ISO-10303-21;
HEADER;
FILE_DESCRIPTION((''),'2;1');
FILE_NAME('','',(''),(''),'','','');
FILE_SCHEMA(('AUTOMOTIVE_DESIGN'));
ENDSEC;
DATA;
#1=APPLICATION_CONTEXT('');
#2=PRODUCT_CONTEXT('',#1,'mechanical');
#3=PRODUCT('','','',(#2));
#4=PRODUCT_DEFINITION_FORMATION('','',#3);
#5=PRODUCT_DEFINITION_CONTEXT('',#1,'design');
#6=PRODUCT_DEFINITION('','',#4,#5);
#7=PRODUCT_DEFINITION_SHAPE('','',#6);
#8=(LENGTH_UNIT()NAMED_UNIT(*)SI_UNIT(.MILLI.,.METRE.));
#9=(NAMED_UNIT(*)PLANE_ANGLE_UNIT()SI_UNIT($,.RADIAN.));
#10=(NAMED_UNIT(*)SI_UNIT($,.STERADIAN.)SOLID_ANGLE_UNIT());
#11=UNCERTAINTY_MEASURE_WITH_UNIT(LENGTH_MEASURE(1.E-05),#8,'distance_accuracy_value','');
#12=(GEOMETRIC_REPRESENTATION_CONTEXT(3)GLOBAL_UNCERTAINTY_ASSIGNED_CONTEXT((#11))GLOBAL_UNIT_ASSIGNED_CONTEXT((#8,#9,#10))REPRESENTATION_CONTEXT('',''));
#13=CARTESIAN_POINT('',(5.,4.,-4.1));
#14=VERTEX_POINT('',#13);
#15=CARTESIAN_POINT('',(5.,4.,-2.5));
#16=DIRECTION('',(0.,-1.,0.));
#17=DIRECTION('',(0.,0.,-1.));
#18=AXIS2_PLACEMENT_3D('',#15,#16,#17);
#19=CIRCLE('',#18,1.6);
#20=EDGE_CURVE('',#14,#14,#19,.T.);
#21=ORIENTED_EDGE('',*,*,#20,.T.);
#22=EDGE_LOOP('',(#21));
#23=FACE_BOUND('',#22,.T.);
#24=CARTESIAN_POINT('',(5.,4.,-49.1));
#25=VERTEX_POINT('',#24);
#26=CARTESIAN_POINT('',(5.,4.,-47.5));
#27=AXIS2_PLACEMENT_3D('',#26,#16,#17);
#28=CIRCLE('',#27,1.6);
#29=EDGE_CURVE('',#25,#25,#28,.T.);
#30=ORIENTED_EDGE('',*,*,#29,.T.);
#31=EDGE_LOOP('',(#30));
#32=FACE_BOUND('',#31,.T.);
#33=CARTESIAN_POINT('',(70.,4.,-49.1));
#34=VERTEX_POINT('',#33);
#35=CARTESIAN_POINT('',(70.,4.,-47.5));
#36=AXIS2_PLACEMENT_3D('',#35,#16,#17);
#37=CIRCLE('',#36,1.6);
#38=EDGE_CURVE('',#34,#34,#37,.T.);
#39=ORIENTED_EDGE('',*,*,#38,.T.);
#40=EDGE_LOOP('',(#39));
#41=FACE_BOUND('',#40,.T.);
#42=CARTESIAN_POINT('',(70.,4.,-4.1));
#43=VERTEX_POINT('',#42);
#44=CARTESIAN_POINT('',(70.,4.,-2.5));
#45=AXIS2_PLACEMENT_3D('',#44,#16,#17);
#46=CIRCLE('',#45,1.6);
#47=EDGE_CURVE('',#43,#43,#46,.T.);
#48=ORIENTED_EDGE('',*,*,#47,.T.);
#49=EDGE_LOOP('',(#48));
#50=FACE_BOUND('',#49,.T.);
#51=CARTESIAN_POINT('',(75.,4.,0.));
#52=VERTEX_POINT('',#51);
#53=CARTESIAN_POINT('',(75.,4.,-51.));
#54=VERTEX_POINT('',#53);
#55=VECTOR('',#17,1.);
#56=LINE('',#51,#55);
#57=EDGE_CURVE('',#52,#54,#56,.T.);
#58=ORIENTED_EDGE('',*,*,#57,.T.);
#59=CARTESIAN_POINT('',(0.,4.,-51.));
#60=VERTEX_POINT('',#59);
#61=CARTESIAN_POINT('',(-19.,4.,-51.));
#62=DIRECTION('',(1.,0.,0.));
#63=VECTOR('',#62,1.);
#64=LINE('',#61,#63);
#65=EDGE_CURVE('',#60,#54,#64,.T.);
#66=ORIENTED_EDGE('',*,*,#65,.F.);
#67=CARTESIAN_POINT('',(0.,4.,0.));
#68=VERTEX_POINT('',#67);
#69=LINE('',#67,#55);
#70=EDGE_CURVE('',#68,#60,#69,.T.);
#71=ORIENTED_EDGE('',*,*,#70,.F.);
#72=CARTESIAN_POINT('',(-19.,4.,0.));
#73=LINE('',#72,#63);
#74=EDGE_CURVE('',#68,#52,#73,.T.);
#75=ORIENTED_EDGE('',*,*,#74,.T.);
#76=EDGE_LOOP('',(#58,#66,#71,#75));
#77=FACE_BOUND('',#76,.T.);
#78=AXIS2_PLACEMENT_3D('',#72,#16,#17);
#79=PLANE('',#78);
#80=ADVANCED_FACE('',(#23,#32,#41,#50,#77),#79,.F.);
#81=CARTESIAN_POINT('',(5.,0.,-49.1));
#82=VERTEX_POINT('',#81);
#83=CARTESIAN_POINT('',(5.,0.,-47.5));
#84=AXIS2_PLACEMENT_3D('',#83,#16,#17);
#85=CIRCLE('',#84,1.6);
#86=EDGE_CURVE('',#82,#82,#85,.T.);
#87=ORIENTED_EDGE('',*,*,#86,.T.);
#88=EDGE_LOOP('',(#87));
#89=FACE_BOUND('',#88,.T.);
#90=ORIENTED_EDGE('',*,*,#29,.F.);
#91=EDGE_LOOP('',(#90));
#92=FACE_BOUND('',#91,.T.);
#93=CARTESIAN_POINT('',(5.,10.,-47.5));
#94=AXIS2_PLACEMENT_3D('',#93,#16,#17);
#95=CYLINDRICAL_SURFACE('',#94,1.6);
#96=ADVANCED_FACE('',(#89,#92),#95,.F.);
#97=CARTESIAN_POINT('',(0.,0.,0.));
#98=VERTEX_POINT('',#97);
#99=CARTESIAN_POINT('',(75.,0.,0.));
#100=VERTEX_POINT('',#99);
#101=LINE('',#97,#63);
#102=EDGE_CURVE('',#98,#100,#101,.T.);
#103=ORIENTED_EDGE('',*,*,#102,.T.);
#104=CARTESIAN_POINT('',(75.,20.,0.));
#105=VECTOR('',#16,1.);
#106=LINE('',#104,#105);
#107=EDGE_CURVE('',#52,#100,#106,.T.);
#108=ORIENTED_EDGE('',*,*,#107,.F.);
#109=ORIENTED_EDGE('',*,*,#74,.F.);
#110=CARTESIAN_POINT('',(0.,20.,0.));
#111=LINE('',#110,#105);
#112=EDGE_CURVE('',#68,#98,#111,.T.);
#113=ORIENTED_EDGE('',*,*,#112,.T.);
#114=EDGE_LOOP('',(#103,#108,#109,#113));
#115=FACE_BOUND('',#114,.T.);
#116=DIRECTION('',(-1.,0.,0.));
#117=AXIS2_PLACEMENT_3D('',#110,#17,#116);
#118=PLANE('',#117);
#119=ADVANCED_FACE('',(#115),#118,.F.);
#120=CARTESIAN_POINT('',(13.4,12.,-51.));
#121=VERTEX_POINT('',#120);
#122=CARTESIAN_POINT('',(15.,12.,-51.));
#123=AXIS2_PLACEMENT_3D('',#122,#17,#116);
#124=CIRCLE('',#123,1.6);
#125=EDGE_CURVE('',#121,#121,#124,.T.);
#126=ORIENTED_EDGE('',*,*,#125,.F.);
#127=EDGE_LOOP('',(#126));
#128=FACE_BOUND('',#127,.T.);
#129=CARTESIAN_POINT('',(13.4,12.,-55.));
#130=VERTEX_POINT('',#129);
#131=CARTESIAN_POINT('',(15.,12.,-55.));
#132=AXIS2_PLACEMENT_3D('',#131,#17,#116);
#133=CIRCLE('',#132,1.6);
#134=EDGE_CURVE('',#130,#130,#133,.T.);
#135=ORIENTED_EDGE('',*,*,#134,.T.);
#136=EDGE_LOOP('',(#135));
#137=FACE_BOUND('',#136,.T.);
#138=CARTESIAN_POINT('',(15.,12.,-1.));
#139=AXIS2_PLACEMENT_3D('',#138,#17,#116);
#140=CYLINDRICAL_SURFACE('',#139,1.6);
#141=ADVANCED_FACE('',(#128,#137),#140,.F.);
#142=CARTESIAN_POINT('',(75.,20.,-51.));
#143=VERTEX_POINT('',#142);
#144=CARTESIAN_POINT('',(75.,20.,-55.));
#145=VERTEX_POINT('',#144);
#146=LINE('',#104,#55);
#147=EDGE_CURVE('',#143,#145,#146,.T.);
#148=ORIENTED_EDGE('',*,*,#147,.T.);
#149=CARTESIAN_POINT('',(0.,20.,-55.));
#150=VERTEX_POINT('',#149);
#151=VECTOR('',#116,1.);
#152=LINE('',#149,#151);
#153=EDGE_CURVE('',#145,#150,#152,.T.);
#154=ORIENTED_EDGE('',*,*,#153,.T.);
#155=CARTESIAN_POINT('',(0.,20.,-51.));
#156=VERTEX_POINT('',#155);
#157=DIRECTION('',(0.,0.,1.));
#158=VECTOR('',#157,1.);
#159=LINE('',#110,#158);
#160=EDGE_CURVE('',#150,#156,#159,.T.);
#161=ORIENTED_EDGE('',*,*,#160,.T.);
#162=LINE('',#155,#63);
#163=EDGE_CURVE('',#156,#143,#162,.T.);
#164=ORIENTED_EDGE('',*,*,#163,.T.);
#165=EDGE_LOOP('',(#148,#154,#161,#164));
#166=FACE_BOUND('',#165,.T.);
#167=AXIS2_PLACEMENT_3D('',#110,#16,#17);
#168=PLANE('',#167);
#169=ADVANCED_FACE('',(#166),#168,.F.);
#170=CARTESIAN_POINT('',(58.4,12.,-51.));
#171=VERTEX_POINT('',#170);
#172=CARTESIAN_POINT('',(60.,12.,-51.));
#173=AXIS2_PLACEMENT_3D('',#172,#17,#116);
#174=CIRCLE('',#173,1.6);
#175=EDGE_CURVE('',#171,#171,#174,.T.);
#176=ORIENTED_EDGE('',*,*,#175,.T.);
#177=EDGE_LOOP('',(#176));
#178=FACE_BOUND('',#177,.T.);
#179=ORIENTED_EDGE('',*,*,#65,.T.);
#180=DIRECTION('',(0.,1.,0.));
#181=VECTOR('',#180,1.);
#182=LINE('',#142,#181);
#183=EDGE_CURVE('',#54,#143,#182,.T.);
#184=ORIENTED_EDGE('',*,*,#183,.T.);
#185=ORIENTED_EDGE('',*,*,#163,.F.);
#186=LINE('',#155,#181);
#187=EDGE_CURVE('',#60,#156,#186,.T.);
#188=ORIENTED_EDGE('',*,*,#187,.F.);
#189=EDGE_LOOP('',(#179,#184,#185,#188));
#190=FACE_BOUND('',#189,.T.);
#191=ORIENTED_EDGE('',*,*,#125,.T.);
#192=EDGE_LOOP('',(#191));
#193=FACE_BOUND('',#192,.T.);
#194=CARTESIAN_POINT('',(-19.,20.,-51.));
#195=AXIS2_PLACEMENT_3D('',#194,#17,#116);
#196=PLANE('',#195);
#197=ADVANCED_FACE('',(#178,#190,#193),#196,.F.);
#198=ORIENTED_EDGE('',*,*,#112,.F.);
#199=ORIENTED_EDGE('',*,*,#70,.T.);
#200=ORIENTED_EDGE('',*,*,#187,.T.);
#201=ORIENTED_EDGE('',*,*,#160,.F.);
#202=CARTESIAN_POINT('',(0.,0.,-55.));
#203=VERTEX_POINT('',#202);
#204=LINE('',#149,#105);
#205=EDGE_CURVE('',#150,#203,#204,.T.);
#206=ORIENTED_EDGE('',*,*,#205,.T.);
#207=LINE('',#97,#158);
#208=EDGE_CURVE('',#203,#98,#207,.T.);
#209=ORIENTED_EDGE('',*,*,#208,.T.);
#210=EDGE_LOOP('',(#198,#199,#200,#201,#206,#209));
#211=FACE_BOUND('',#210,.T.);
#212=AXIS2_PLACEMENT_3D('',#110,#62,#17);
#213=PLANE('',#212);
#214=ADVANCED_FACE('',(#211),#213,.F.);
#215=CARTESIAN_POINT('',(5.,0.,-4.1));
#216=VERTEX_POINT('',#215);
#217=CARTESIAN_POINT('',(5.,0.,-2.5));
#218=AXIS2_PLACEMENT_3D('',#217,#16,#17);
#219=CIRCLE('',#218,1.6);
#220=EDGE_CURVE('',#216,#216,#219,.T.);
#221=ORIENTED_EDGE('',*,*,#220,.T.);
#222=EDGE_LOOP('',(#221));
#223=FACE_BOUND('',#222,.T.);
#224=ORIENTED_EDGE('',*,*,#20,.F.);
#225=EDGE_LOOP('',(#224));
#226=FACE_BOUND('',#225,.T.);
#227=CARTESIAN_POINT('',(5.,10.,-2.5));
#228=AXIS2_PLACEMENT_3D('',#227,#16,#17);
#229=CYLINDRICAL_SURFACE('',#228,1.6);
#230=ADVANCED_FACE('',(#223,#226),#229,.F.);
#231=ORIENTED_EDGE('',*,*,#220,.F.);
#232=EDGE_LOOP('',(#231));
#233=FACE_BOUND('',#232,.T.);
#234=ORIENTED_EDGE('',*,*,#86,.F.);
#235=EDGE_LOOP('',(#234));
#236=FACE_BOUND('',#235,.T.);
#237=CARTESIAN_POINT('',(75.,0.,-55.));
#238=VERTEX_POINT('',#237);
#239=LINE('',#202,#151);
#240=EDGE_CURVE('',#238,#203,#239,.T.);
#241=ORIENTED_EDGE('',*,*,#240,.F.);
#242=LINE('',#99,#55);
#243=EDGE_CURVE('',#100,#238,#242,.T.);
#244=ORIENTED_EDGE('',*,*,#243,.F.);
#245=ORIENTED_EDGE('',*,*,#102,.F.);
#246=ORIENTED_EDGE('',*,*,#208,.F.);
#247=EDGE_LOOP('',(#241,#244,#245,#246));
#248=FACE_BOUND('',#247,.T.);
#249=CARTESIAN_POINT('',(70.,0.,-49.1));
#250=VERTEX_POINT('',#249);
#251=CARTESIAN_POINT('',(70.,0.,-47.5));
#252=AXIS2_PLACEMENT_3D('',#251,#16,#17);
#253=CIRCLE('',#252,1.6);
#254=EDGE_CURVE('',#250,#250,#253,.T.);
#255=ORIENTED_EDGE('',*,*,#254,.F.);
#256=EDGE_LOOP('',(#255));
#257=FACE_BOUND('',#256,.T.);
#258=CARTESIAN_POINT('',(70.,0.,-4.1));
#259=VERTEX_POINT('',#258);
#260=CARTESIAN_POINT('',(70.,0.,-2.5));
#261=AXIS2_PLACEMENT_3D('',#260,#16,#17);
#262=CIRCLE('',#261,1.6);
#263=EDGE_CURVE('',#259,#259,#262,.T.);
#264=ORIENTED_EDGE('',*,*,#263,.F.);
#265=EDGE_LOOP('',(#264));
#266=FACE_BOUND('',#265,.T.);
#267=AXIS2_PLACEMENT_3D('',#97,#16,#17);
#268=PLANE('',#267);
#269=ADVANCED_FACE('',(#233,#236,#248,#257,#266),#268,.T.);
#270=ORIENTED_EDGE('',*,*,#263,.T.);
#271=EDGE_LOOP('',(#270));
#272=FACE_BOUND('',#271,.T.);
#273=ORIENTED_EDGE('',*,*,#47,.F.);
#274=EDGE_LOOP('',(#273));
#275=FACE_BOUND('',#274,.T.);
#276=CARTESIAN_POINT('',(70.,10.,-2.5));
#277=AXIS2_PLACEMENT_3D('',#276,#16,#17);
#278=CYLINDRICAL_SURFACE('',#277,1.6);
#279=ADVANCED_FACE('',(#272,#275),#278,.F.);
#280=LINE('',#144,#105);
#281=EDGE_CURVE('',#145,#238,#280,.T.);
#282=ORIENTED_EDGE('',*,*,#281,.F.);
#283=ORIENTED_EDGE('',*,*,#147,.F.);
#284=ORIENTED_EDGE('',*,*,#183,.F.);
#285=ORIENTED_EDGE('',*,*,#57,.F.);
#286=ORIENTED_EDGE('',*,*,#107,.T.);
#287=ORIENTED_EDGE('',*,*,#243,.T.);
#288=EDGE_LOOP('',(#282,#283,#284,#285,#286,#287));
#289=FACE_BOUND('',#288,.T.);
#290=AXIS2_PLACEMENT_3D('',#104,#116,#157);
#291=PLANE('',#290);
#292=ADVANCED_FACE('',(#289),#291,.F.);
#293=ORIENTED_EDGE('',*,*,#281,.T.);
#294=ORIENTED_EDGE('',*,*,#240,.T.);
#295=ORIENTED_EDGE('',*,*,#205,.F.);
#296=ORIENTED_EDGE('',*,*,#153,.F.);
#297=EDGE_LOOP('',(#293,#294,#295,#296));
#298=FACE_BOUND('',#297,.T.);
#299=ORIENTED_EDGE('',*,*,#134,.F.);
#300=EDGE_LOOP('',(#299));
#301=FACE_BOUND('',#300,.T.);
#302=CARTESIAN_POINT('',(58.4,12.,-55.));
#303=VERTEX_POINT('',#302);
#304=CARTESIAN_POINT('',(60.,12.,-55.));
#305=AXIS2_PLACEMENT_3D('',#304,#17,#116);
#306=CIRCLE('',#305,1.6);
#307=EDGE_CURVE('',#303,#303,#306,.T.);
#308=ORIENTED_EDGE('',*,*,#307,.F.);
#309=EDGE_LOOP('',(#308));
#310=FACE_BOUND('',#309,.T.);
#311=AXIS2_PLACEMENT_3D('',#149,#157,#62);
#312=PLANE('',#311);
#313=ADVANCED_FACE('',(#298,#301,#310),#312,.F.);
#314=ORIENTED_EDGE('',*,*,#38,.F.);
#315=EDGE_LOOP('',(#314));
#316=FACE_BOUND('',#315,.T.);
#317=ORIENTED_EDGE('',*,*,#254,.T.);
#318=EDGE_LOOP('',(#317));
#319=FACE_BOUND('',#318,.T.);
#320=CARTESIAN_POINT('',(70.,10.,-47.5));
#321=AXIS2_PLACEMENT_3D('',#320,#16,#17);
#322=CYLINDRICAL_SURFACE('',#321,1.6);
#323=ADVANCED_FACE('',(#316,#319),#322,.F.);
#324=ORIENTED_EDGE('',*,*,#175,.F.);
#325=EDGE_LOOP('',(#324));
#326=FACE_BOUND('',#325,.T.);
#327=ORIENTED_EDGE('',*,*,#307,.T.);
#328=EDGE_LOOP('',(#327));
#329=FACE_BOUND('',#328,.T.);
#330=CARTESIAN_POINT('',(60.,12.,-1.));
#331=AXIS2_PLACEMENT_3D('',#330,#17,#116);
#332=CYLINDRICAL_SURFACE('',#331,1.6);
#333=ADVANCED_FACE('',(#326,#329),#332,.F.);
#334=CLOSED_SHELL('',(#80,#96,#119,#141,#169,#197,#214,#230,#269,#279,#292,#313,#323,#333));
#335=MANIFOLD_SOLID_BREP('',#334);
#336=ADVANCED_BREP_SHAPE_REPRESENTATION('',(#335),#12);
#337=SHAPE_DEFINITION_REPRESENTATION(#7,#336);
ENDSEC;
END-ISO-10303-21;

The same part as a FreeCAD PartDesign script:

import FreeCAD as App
import Part
import Sketcher
from FreeCAD import Vector
Q = App.Units.Quantity


def add_polygon(sketch, points):
    """Adds a closed chain of lines whose ends are joined by coincident constraints."""
    first, n = sketch.GeometryCount, len(points)
    for a, b in zip(points, points[1:] + points[:1]):
        sketch.addGeometry(Part.LineSegment(App.Vector(*a, 0), App.Vector(*b, 0)), False)
    for i in range(n):
        sketch.addConstraint(Sketcher.Constraint("Coincident", first + i, 2, first + (i + 1) % n, 1))

doc = App.newDocument("Part")
params = doc.addObject("Spreadsheet::Sheet", "Params")
for row, (alias, value) in enumerate([
    ("sketch1_width", "75 mm"),
    ("sketch1_height", "55 mm"),
    ("pad1_length", "20 mm"),
    ("sketch2_width", "16 mm"),
    ("sketch2_height", "51 mm"),
    ("pocket1_length", "94 mm"),
    ("sketch3_diameter", "3.2 mm"),
    ("pocket2_length", "54 mm"),
    ("sketch4_diameter", "3.2 mm"),
    ("pocket3_length", "10 mm"),
], start=1):
    params.set(f"A{row}", alias)
    params.set(f"B{row}", "=" + value)
    params.setAlias(f"B{row}", alias)

body = doc.addObject("PartDesign::Body", "Body")

sketch1 = body.newObject("Sketcher::SketchObject", "Sketch")
sketch1.AttachmentSupport = (doc.getObject("XZ_Plane"), [""])
sketch1.MapMode = "FlatFace"
add_polygon(sketch1, [(0, -55), (0, 0), (75, 0), (75, -55)])
sketch1.addConstraint(Sketcher.Constraint("Vertical", 0))
sketch1.addConstraint(Sketcher.Constraint("Horizontal", 1))
sketch1.addConstraint(Sketcher.Constraint("Vertical", 2))
sketch1.addConstraint(Sketcher.Constraint("Horizontal", 3))
sketch1.addConstraint(Sketcher.Constraint("Coincident", 0, 2, -1, 1))
sketch1.addConstraint(Sketcher.Constraint("DistanceX", 1, 1, 1, 2, Q("75 mm")))
sketch1.addConstraint(Sketcher.Constraint("DistanceY", 0, 1, 0, 2, Q("55 mm")))
sketch1.setExpression("Constraints[9]", "Params.sketch1_width")
sketch1.setExpression("Constraints[10]", "Params.sketch1_height")
pad1 = body.newObject("PartDesign::Pad", "Pad")
pad1.Profile = sketch1
pad1.setExpression("Length", "Params.pad1_length")
pad1.Reversed = True

sketch2 = body.newObject("Sketcher::SketchObject", "Sketch001")
sketch2.AttachmentSupport = (doc.getObject("YZ_Plane"), [""])
sketch2.MapMode = "FlatFace"
sketch2.AttachmentOffset = App.Placement(Vector(0, 0, 75), App.Rotation())
add_polygon(sketch2, [(20, 0), (4, 0), (4, -51), (20, -51)])
sketch2.addConstraint(Sketcher.Constraint("Horizontal", 0))
sketch2.addConstraint(Sketcher.Constraint("Vertical", 1))
sketch2.addConstraint(Sketcher.Constraint("Horizontal", 2))
sketch2.addConstraint(Sketcher.Constraint("Vertical", 3))
sketch2.addConstraint(Sketcher.Constraint("PointOnObject", 0, 2, -1))
sketch2.addConstraint(Sketcher.Constraint("DistanceX", 0, 2, 0, 1, Q("16 mm")))
sketch2.addConstraint(Sketcher.Constraint("DistanceY", 1, 2, 1, 1, Q("51 mm")))
sketch2.addConstraint(Sketcher.Constraint("DistanceX", -1, 1, 0, 2, Q("4 mm")))
sketch2.setExpression("Constraints[9]", "Params.sketch2_width")
sketch2.setExpression("Constraints[10]", "Params.sketch2_height")
pocket1 = body.newObject("PartDesign::Pocket", "Pocket")
pocket1.Profile = sketch2
pocket1.setExpression("Length", "Params.pocket1_length")

sketch3 = body.newObject("Sketcher::SketchObject", "Sketch002")
sketch3.AttachmentSupport = (doc.getObject("XY_Plane"), [""])
sketch3.MapMode = "FlatFace"
sketch3.AttachmentOffset = App.Placement(Vector(0, 0, -55), App.Rotation())
sketch3.addGeometry(Part.Circle(Vector(60, 12, 0), Vector(0, 0, 1), 1.6), False)
sketch3.addGeometry(Part.Circle(Vector(15, 12, 0), Vector(0, 0, 1), 1.6), False)
sketch3.addConstraint(Sketcher.Constraint("Equal", 0, 1))
sketch3.addConstraint(Sketcher.Constraint("Horizontal", 0, 3, 1, 3))
sketch3.addConstraint(Sketcher.Constraint("Diameter", 0, Q("3.2 mm")))
sketch3.addConstraint(Sketcher.Constraint("DistanceX", -1, 1, 0, 3, Q("60 mm")))
sketch3.addConstraint(Sketcher.Constraint("DistanceY", -1, 1, 0, 3, Q("12 mm")))
sketch3.addConstraint(Sketcher.Constraint("DistanceX", -1, 1, 1, 3, Q("15 mm")))
sketch3.setExpression("Constraints[2]", "Params.sketch3_diameter")
pocket2 = body.newObject("PartDesign::Pocket", "Pocket001")
pocket2.Profile = sketch3
pocket2.setExpression("Length", "Params.pocket2_length")
pocket2.Reversed = True

sketch4 = body.newObject("Sketcher::SketchObject", "Sketch003")
sketch4.AttachmentSupport = (doc.getObject("XZ_Plane"), [""])
sketch4.MapMode = "FlatFace"
sketch4.addGeometry(Part.Circle(Vector(5, -2.5, 0), Vector(0, 0, 1), 1.6), False)
sketch4.addGeometry(Part.Circle(Vector(5, -47.5, 0), Vector(0, 0, 1), 1.6), False)
sketch4.addGeometry(Part.Circle(Vector(70, -47.5, 0), Vector(0, 0, 1), 1.6), False)
sketch4.addGeometry(Part.Circle(Vector(70, -2.5, 0), Vector(0, 0, 1), 1.6), False)
sketch4.addConstraint(Sketcher.Constraint("Equal", 0, 1))
sketch4.addConstraint(Sketcher.Constraint("Equal", 1, 2))
sketch4.addConstraint(Sketcher.Constraint("Equal", 2, 3))
sketch4.addConstraint(Sketcher.Constraint("Horizontal", 1, 3, 2, 3))
sketch4.addConstraint(Sketcher.Constraint("Horizontal", 0, 3, 3, 3))
sketch4.addConstraint(Sketcher.Constraint("Vertical", 0, 3, 1, 3))
sketch4.addConstraint(Sketcher.Constraint("Vertical", 2, 3, 3, 3))
sketch4.addConstraint(Sketcher.Constraint("Diameter", 0, Q("3.2 mm")))
sketch4.addConstraint(Sketcher.Constraint("DistanceX", -1, 1, 0, 3, Q("5 mm")))
sketch4.addConstraint(Sketcher.Constraint("DistanceX", -1, 1, 2, 3, Q("70 mm")))
sketch4.addConstraint(Sketcher.Constraint("DistanceY", 1, 3, 0, 3, Q("45 mm")))
sketch4.addConstraint(Sketcher.Constraint("DistanceY", 0, 3, -1, 1, Q("2.5 mm")))
sketch4.setExpression("Constraints[7]", "Params.sketch4_diameter")
pocket3 = body.newObject("PartDesign::Pocket", "Pocket002")
pocket3.Profile = sketch4
pocket3.setExpression("Length", "Params.pocket3_length")

doc.recompute()
